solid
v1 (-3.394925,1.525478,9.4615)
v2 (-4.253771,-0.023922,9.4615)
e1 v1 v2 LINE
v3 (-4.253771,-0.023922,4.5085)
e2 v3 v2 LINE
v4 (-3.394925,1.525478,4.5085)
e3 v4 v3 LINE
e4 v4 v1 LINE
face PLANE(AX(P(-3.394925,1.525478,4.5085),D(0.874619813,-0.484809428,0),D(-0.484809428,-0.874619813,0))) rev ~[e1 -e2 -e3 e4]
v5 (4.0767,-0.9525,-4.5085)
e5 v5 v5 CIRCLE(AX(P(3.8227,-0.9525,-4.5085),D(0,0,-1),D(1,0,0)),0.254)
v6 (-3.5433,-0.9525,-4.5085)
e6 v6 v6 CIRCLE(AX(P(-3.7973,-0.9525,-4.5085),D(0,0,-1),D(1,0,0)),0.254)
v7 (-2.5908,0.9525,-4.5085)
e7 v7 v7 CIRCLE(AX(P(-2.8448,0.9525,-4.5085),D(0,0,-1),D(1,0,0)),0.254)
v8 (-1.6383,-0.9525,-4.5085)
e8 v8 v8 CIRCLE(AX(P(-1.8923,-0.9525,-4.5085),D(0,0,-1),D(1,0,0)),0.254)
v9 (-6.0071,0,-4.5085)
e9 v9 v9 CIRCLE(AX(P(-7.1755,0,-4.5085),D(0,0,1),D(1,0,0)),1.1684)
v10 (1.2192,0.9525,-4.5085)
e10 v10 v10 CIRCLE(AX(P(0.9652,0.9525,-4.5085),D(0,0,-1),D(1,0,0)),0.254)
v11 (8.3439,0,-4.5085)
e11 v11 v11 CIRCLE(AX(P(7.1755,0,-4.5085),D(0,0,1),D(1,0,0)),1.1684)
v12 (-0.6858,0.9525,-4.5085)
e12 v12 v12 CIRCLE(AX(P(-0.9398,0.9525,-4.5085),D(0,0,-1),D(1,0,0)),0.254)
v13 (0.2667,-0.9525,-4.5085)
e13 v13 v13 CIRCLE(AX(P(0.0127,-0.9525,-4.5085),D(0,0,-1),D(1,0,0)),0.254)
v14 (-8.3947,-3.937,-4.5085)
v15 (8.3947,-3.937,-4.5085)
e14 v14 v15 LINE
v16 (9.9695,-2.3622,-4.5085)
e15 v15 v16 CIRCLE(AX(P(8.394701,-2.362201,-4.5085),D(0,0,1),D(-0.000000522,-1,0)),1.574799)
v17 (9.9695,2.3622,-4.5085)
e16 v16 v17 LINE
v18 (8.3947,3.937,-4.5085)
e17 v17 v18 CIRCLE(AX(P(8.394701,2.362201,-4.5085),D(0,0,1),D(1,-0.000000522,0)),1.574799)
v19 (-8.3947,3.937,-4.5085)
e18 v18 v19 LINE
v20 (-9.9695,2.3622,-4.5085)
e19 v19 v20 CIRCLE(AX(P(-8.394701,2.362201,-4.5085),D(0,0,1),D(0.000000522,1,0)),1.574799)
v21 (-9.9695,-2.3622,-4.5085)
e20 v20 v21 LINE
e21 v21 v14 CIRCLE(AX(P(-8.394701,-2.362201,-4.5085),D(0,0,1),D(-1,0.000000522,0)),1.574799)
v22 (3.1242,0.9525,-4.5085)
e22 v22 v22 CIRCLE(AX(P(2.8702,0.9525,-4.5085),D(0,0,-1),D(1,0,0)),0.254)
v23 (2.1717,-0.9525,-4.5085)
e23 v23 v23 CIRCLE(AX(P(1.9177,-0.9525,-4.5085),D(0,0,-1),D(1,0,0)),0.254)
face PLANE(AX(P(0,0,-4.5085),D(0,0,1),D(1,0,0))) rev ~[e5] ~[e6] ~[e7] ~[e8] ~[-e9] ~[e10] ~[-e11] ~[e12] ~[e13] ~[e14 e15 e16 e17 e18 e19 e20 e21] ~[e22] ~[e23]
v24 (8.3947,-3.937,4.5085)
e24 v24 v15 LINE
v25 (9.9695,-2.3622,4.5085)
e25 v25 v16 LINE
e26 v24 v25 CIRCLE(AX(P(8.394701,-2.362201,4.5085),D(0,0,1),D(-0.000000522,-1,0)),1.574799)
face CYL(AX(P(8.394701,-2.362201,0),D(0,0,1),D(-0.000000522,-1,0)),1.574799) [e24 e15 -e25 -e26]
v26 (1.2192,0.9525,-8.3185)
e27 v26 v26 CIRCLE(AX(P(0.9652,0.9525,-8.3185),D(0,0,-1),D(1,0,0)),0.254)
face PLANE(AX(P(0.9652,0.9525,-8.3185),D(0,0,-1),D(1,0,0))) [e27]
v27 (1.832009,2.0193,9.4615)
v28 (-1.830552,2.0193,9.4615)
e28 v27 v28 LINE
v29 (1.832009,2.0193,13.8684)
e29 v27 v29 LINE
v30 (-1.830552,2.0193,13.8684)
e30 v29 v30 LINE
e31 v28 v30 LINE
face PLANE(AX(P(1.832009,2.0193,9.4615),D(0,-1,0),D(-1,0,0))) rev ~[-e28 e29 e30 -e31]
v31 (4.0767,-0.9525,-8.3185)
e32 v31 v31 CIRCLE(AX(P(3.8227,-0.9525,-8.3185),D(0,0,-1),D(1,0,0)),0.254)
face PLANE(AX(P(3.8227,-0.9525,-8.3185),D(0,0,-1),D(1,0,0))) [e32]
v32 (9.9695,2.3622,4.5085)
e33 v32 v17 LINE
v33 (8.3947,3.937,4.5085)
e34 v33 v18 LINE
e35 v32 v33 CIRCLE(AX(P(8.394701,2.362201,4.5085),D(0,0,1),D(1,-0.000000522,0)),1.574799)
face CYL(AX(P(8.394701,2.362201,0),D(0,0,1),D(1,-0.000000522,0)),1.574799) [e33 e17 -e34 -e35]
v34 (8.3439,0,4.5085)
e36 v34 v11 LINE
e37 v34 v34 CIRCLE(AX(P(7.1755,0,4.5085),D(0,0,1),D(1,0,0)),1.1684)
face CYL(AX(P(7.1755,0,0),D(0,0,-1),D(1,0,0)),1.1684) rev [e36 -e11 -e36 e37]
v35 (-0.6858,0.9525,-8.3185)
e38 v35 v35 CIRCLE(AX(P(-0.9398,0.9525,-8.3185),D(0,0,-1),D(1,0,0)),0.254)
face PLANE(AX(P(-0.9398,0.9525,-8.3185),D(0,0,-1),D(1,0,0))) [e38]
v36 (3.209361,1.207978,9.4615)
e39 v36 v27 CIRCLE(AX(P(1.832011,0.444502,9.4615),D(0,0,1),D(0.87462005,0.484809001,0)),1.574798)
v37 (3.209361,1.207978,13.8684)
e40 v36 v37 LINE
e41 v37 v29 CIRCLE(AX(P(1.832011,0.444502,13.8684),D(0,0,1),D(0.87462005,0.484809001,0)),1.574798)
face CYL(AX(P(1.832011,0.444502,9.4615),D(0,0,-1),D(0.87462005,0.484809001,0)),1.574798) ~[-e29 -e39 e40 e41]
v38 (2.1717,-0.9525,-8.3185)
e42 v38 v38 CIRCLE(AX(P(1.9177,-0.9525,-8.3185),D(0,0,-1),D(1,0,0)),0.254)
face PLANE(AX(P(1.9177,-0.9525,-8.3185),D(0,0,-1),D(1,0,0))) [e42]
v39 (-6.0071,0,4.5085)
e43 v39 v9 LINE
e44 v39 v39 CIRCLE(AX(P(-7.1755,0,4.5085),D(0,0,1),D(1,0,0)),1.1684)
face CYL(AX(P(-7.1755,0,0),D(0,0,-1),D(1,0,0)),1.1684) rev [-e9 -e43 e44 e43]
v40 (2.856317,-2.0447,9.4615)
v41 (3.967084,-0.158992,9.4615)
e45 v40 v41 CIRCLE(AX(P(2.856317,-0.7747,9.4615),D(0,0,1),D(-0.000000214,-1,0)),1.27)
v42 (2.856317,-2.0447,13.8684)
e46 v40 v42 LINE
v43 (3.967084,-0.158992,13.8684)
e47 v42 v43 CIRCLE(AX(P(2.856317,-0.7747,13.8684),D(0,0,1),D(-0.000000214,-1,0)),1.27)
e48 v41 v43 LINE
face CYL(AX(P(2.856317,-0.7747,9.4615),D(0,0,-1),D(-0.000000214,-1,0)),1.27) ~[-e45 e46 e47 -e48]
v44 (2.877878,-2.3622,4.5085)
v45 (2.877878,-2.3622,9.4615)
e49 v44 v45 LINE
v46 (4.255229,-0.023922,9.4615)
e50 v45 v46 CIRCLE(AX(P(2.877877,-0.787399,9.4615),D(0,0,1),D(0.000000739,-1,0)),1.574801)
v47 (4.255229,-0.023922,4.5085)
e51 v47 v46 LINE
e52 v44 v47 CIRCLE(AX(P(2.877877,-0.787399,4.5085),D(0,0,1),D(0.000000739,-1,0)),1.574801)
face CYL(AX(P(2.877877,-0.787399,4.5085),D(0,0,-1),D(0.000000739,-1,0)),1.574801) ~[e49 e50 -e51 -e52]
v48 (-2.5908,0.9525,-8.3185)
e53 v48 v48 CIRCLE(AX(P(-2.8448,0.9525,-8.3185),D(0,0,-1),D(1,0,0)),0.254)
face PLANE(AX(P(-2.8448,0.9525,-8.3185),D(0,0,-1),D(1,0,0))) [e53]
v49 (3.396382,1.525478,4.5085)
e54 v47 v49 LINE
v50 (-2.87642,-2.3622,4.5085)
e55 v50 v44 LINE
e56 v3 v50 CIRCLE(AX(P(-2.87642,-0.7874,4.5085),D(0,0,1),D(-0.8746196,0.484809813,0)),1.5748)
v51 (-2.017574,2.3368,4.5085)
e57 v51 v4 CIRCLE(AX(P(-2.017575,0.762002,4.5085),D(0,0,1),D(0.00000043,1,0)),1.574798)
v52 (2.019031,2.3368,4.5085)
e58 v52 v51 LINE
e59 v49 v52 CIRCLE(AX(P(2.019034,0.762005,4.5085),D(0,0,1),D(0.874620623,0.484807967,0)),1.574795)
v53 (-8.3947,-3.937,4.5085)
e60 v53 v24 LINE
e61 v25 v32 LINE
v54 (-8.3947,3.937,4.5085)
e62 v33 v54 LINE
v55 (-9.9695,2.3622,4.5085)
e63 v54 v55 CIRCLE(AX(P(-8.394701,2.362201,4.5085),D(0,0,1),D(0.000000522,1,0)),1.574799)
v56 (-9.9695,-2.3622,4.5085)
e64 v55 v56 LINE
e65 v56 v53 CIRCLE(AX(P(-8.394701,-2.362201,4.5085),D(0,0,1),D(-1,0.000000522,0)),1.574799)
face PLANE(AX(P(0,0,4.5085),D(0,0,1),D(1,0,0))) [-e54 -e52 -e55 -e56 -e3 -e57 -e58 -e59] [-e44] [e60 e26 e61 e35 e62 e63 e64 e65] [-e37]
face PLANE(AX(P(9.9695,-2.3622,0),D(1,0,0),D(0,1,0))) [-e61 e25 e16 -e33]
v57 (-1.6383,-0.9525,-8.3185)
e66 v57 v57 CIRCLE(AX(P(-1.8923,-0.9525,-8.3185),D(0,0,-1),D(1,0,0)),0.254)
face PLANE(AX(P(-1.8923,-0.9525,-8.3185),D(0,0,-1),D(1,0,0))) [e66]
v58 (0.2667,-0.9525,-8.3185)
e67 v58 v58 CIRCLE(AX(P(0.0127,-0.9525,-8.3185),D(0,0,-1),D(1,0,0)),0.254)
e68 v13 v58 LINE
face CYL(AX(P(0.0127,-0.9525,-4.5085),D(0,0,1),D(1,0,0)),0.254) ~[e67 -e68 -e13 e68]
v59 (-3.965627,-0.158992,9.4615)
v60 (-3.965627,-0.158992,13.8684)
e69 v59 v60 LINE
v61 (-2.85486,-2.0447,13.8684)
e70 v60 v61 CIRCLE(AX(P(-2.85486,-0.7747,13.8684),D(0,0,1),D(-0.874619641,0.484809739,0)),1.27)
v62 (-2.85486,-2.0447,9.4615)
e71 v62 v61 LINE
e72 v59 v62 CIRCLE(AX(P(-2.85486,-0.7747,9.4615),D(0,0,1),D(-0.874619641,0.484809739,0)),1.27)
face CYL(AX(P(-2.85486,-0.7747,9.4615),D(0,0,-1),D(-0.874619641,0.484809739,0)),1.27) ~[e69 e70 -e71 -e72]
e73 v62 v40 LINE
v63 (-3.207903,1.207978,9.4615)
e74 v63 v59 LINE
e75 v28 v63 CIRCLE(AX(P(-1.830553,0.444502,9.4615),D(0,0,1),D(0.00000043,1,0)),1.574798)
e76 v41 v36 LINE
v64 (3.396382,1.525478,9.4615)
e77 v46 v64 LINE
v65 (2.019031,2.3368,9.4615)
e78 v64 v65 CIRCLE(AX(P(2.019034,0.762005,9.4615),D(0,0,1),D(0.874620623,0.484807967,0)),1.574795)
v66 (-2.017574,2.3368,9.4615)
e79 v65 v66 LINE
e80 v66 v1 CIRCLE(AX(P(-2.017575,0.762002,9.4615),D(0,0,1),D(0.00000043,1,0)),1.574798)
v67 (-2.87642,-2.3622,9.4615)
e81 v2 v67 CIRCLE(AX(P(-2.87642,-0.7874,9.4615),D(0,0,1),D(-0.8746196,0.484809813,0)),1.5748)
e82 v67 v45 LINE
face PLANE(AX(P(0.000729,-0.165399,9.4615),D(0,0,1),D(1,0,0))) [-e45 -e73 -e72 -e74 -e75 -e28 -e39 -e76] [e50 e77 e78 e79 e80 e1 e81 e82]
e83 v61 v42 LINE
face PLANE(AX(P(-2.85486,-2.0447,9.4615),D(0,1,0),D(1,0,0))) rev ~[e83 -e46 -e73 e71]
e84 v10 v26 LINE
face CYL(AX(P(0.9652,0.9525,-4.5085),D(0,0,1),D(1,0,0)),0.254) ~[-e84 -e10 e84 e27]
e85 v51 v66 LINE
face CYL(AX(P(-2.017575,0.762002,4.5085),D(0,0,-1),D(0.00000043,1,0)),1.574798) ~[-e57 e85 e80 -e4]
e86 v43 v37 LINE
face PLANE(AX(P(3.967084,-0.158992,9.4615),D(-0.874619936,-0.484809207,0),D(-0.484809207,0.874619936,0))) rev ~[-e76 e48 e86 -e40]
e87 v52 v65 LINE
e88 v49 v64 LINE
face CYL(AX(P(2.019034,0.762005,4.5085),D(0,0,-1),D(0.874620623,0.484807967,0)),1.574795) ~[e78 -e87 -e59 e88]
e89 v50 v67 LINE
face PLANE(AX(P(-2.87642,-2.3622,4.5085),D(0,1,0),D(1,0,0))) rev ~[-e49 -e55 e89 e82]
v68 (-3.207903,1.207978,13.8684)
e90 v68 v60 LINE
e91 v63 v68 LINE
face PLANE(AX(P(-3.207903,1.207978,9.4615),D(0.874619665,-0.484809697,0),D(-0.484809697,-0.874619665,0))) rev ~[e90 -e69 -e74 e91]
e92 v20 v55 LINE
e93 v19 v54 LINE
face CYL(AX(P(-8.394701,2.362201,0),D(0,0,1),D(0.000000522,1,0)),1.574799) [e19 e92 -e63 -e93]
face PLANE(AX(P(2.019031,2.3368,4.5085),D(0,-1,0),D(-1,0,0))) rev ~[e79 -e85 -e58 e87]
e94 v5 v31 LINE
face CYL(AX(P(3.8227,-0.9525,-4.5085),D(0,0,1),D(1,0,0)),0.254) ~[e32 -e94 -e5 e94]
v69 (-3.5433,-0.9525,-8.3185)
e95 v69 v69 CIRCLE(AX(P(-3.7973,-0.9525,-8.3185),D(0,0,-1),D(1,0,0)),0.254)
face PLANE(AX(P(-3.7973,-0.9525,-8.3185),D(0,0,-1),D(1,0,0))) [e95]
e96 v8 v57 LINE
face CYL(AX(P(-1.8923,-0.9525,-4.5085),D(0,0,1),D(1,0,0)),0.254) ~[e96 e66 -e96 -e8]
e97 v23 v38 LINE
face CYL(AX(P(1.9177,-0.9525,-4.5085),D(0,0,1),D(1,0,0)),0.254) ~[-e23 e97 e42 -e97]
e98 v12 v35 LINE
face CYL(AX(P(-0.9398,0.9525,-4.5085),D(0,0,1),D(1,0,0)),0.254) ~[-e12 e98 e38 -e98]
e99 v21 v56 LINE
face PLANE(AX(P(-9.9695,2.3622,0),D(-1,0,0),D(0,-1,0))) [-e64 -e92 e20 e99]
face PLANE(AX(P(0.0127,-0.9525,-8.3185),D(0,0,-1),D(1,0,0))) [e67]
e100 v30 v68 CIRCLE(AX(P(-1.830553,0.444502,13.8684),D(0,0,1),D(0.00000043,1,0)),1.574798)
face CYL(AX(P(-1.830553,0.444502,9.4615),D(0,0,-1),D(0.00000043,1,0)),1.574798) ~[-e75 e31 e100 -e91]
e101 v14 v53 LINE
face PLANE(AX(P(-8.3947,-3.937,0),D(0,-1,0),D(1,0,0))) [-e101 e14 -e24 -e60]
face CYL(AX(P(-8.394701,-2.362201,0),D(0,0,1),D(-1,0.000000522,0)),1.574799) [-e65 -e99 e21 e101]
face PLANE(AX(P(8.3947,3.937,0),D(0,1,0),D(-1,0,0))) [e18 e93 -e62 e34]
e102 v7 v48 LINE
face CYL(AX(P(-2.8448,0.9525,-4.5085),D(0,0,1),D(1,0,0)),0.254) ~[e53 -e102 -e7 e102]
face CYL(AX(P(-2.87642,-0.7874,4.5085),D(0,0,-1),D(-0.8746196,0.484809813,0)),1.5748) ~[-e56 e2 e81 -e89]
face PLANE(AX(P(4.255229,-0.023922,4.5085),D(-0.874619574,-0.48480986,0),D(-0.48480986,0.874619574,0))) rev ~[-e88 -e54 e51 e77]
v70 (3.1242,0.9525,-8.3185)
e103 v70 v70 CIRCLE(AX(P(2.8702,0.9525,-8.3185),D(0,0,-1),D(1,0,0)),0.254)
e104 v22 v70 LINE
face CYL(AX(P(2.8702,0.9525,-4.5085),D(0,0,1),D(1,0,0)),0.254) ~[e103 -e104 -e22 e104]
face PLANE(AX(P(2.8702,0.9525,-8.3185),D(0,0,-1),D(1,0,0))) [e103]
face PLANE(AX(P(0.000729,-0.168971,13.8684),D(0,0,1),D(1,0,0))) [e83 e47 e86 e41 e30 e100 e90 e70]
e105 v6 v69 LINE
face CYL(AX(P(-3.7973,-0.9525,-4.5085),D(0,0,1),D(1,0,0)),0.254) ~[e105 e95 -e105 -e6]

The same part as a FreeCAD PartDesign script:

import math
import FreeCAD as App
import Part
import Sketcher

V = App.Vector
Q = App.Units.Quantity

doc = App.newDocument("Part")
body = doc.addObject("PartDesign::Body", "Body")

# Sketch on XY plane
sketch1 = body.newObject("Sketcher::SketchObject", "Sketch")
sketch1.AttachmentSupport = (doc.getObject("XY_Plane"), [""])
sketch1.MapMode = "FlatFace"
sketch1.addGeometry([
    Part.LineSegment(V(8.4, 3.9, 0), V(-8.4, 3.9, 0)),  # 0
    Part.ArcOfCircle(Part.Circle(V(-8.4, 2.4, 0), V(0, 0, 1), 1.6), math.radians(90), math.radians(180)),  # 1
    Part.LineSegment(V(-10, 2.4, 0), V(-10, -2.4, 0)),  # 2
    Part.ArcOfCircle(Part.Circle(V(-8.4, -2.4, 0), V(0, 0, 1), 1.6), math.radians(180), math.radians(270)),  # 3
    Part.LineSegment(V(-8.4, -3.9, 0), V(8.4, -3.9, 0)),  # 4
    Part.ArcOfCircle(Part.Circle(V(8.4, -2.4, 0), V(0, 0, 1), 1.6), math.radians(-90), math.radians(0)),  # 5
    Part.LineSegment(V(10, -2.4, 0), V(10, 2.4, 0)),  # 6
    Part.ArcOfCircle(Part.Circle(V(8.4, 2.4, 0), V(0, 0, 1), 1.6), math.radians(0), math.radians(90)),  # 7
    Part.Circle(V(-7.2, 0, 0), V(0, 0, 1), 1.2),  # 8
    Part.Circle(V(7.2, 0, 0), V(0, 0, 1), 1.2),  # 9
], False)
sketch1.addConstraint([
    Sketcher.Constraint("Tangent", 0, 2, 1, 1),
    Sketcher.Constraint("Tangent", 1, 2, 2, 1),
    Sketcher.Constraint("Tangent", 2, 2, 3, 1),
    Sketcher.Constraint("Tangent", 3, 2, 4, 1),
    Sketcher.Constraint("Tangent", 4, 2, 5, 1),
    Sketcher.Constraint("Tangent", 5, 2, 6, 1),
    Sketcher.Constraint("Tangent", 6, 2, 7, 1),
    Sketcher.Constraint("Tangent", 7, 2, 0, 1),
    Sketcher.Constraint("Horizontal", 0),
    Sketcher.Constraint("Vertical", 2),
    Sketcher.Constraint("Horizontal", 4),
    Sketcher.Constraint("Vertical", 6),
    Sketcher.Constraint("Equal", 1, 3),
    Sketcher.Constraint("Equal", 3, 5),
    Sketcher.Constraint("Equal", 5, 7),
    Sketcher.Constraint("Equal", 8, 9),
    Sketcher.Constraint("Symmetric", 1, 3, 5, 3, -1, 1),
    Sketcher.Constraint("Symmetric", 8, 3, 9, 3, -1, 1),
    Sketcher.Constraint("PointOnObject", 8, 3, -1),
    Sketcher.Constraint("Diameter", 8, Q("0.092 in")),
    Sketcher.Constraint("Radius", 1, Q("0.062 in")),
    Sketcher.Constraint("DistanceX", 0, 2, 0, 1, Q("0.661 in")),
    Sketcher.Constraint("DistanceY", 2, 2, 2, 1, Q("0.186 in")),
    Sketcher.Constraint("DistanceX", 1, 2, 8, 3, Q("0.11 in")),
])
pad1 = body.newObject("PartDesign::Pad", "Pad")
pad1.Profile = sketch1
pad1.Length = Q("0.355 in")
pad1.Midplane = True

# Sketch on XY plane
sketch2 = body.newObject("Sketcher::SketchObject", "Sketch001")
sketch2.AttachmentSupport = (doc.getObject("XY_Plane"), [""])
sketch2.MapMode = "FlatFace"
sketch2.AttachmentOffset = App.Placement(V(0, 0, 0.1775 * 25.4), App.Rotation())
sketch2.addGeometry([
    Part.LineSegment(V(-2.9, -2.4, 0), V(2.9, -2.4, 0)),  # 0
    Part.ArcOfCircle(Part.Circle(V(2.9, -0.8, 0), V(0, 0, 1), 1.6), math.radians(-90), math.radians(29)),  # 1
    Part.LineSegment(V(4.3, 0, 0), V(3.4, 1.5, 0)),  # 2
    Part.ArcOfCircle(Part.Circle(V(2, 0.8, 0), V(0, 0, 1), 1.6), math.radians(29), math.radians(90)),  # 3
    Part.LineSegment(V(2, 2.3, 0), V(-2, 2.3, 0)),  # 4
    Part.ArcOfCircle(Part.Circle(V(-2, 0.8, 0), V(0, 0, 1), 1.6), math.radians(90), math.radians(151)),  # 5
    Part.LineSegment(V(-3.4, 1.5, 0), V(-4.3, 0, 0)),  # 6
    Part.ArcOfCircle(Part.Circle(V(-2.9, -0.8, 0), V(0, 0, 1), 1.6), math.radians(151), math.radians(270)),  # 7
], False)
sketch2.addConstraint([
    Sketcher.Constraint("Tangent", 0, 2, 1, 1),
    Sketcher.Constraint("Tangent", 1, 2, 2, 1),
    Sketcher.Constraint("Coincident", 2, 2, 3, 1),
    Sketcher.Constraint("Tangent", 3, 2, 4, 1),
    Sketcher.Constraint("Tangent", 4, 2, 5, 1),
    Sketcher.Constraint("Tangent", 5, 2, 6, 1),
    Sketcher.Constraint("Tangent", 6, 2, 7, 1),
    Sketcher.Constraint("Tangent", 7, 2, 0, 1),
    Sketcher.Constraint("Horizontal", 0),
    Sketcher.Constraint("Horizontal", 4),
    Sketcher.Constraint("Equal", 5, 7),
    Sketcher.Constraint("Horizontal", 1, 3, 7, 3),
    Sketcher.Constraint("Horizontal", 2, 2, 5, 2),
    Sketcher.Constraint("Horizontal", 1, 2, 6, 2),
    Sketcher.Constraint("Angle", 2, Q("119.000016 deg")),
    Sketcher.Constraint("Radius", 1, Q("0.062 in")),
    Sketcher.Constraint("Radius", 3, Q("0.0619998 in")),
    Sketcher.Constraint("DistanceY", -1, 1, 3, 3, Q("0.0300002 in")),
    Sketcher.Constraint("DistanceY", 1, 3, -1, 1, Q("0.031 in")),
    Sketcher.Constraint("DistanceX", 0, 1, 0, 2, Q("5.754298 mm")),
    Sketcher.Constraint("DistanceX", 7, 3, -1, 1, Q("2.87642 mm")),
])
pad2 = body.newObject("PartDesign::Pad", "Pad001")
pad2.Profile = sketch2
pad2.Length = Q("0.195 in")

# Sketch on XY plane
sketch3 = body.newObject("Sketcher::SketchObject", "Sketch002")
sketch3.AttachmentSupport = (doc.getObject("XY_Plane"), [""])
sketch3.MapMode = "FlatFace"
sketch3.AttachmentOffset = App.Placement(V(0, 0, 0.3725 * 25.4), App.Rotation())
sketch3.addGeometry([
    Part.LineSegment(V(1.8, 2, 0), V(-1.8, 2, 0)),  # 0
    Part.ArcOfCircle(Part.Circle(V(-1.8, 0.4, 0), V(0, 0, 1), 1.6), math.radians(90), math.radians(151)),  # 1
    Part.LineSegment(V(-3.2, 1.2, 0), V(-4, -0.2, 0)),  # 2
    Part.ArcOfCircle(Part.Circle(V(-2.9, -0.8, 0), V(0, 0, 1), 1.3), math.radians(151), math.radians(270)),  # 3
    Part.LineSegment(V(-2.9, -2, 0), V(2.9, -2, 0)),  # 4
    Part.ArcOfCircle(Part.Circle(V(2.9, -0.8, 0), V(0, 0, 1), 1.3), math.radians(-90), math.radians(29)),  # 5
    Part.LineSegment(V(4, -0.2, 0), V(3.2, 1.2, 0)),  # 6
    Part.ArcOfCircle(Part.Circle(V(1.8, 0.4, 0), V(0, 0, 1), 1.6), math.radians(29), math.radians(90)),  # 7
], False)
sketch3.addConstraint([
    Sketcher.Constraint("Tangent", 0, 2, 1, 1),
    Sketcher.Constraint("Tangent", 1, 2, 2, 1),
    Sketcher.Constraint("Tangent", 2, 2, 3, 1),
    Sketcher.Constraint("Tangent", 3, 2, 4, 1),
    Sketcher.Constraint("Tangent", 4, 2, 5, 1),
    Sketcher.Constraint("Tangent", 5, 2, 6, 1),
    Sketcher.Constraint("Tangent", 6, 2, 7, 1),
    Sketcher.Constraint("Tangent", 7, 2, 0, 1),
    Sketcher.Constraint("Horizontal", 0),
    Sketcher.Constraint("Horizontal", 4),
    Sketcher.Constraint("Equal", 3, 5),
    Sketcher.Constraint("Equal", 1, 7),
    Sketcher.Constraint("Horizontal", 2, 2, 5, 2),
    Sketcher.Constraint("Radius", 3, Q("0.05 in")),
    Sketcher.Constraint("Angle", 2, Q("-119.000005 deg")),
    Sketcher.Constraint("Radius", 1, Q("0.0619999 in")),
    Sketcher.Constraint("DistanceY", 3, 3, 0, 2, Q("0.11 in")),
    Sketcher.Constraint("DistanceY", -1, 1, 1, 3, Q("0.0175001 in")),
    Sketcher.Constraint("DistanceX", 0, 2, 0, 1, Q("3.662561 mm")),
    Sketcher.Constraint("DistanceX", 3, 3, -1, 1, Q("2.85486 mm")),
])
pad3 = body.newObject("PartDesign::Pad", "Pad002")
pad3.Profile = sketch3
pad3.Length = Q("0.1735 in")

# Sketch on XY plane
sketch4 = body.newObject("Sketcher::SketchObject", "Sketch003")
sketch4.AttachmentSupport = (doc.getObject("XY_Plane"), [""])
sketch4.MapMode = "FlatFace"
sketch4.AttachmentOffset = App.Placement(V(0, 0, -0.1775 * 25.4), App.Rotation())
sketch4.addGeometry([
    Part.Circle(V(-3.8, -0.95, 0), V(0, 0, 1), 0.25),  # 0
    Part.Circle(V(-1.89, -0.95, 0), V(0, 0, 1), 0.25),  # 1
    Part.Circle(V(0.01, -0.95, 0), V(0, 0, 1), 0.25),  # 2
    Part.Circle(V(1.92, -0.95, 0), V(0, 0, 1), 0.25),  # 3
    Part.Circle(V(3.82, -0.95, 0), V(0, 0, 1), 0.25),  # 4
    Part.Circle(V(-2.84, 0.95, 0), V(0, 0, 1), 0.25),  # 5
    Part.Circle(V(-0.94, 0.95, 0), V(0, 0, 1), 0.25),  # 6
    Part.Circle(V(0.97, 0.95, 0), V(0, 0, 1), 0.25),  # 7
    Part.Circle(V(2.87, 0.95, 0), V(0, 0, 1), 0.25),  # 8
], False)
sketch4.addConstraint([
    Sketcher.Constraint("Equal", 0, 1),
    Sketcher.Constraint("Equal", 1, 2),
    Sketcher.Constraint("Equal", 2, 3),
    Sketcher.Constraint("Equal", 3, 4),
    Sketcher.Constraint("Equal", 4, 5),
    Sketcher.Constraint("Equal", 5, 6),
    Sketcher.Constraint("Equal", 6, 7),
    Sketcher.Constraint("Equal", 7, 8),
    Sketcher.Constraint("Horizontal", 0, 3, 1, 3),
    Sketcher.Constraint("Horizontal", 1, 3, 2, 3),
    Sketcher.Constraint("Horizontal", 2, 3, 3, 3),
    Sketcher.Constraint("Horizontal", 3, 3, 4, 3),
    Sketcher.Constraint("Horizontal", 5, 3, 6, 3),
    Sketcher.Constraint("Horizontal", 6, 3, 7, 3),
    Sketcher.Constraint("Horizontal", 7, 3, 8, 3),
    Sketcher.Constraint("Diameter", 0, Q("0.02 in")),
    Sketcher.Constraint("DistanceX", 0, 3, 4, 3, Q("0.3 in")),
    Sketcher.Constraint("DistanceX", 0, 3, 2, 3, Q("0.15 in")),
    Sketcher.Constraint("DistanceX", 1, 3, 3, 3, Q("0.15 in")),
    Sketcher.Constraint("DistanceX", 6, 3, 8, 3, Q("0.15 in")),
    Sketcher.Constraint("DistanceX", 5, 3, -1, 1, Q("0.112 in")),
    Sketcher.Constraint("DistanceX", 6, 3, -1, 1, Q("0.037 in")),
    Sketcher.Constraint("DistanceX", -1, 1, 7, 3, Q("0.038 in")),
    Sketcher.Constraint("DistanceX", 0, 3, 1, 3, Q("0.075 in")),
    Sketcher.Constraint("DistanceY", 0, 3, 5, 3, Q("0.075 in")),
    Sketcher.Constraint("DistanceX", 5, 3, 3, 3, Q("0.1875 in")),
    Sketcher.Constraint("DistanceY", 0, 3, -1, 1, Q("0.0375 in")),
])
pad4 = body.newObject("PartDesign::Pad", "Pad003")
pad4.Profile = sketch4
pad4.Length = Q("0.15 in")
pad4.Reversed = True

doc.recompute()
